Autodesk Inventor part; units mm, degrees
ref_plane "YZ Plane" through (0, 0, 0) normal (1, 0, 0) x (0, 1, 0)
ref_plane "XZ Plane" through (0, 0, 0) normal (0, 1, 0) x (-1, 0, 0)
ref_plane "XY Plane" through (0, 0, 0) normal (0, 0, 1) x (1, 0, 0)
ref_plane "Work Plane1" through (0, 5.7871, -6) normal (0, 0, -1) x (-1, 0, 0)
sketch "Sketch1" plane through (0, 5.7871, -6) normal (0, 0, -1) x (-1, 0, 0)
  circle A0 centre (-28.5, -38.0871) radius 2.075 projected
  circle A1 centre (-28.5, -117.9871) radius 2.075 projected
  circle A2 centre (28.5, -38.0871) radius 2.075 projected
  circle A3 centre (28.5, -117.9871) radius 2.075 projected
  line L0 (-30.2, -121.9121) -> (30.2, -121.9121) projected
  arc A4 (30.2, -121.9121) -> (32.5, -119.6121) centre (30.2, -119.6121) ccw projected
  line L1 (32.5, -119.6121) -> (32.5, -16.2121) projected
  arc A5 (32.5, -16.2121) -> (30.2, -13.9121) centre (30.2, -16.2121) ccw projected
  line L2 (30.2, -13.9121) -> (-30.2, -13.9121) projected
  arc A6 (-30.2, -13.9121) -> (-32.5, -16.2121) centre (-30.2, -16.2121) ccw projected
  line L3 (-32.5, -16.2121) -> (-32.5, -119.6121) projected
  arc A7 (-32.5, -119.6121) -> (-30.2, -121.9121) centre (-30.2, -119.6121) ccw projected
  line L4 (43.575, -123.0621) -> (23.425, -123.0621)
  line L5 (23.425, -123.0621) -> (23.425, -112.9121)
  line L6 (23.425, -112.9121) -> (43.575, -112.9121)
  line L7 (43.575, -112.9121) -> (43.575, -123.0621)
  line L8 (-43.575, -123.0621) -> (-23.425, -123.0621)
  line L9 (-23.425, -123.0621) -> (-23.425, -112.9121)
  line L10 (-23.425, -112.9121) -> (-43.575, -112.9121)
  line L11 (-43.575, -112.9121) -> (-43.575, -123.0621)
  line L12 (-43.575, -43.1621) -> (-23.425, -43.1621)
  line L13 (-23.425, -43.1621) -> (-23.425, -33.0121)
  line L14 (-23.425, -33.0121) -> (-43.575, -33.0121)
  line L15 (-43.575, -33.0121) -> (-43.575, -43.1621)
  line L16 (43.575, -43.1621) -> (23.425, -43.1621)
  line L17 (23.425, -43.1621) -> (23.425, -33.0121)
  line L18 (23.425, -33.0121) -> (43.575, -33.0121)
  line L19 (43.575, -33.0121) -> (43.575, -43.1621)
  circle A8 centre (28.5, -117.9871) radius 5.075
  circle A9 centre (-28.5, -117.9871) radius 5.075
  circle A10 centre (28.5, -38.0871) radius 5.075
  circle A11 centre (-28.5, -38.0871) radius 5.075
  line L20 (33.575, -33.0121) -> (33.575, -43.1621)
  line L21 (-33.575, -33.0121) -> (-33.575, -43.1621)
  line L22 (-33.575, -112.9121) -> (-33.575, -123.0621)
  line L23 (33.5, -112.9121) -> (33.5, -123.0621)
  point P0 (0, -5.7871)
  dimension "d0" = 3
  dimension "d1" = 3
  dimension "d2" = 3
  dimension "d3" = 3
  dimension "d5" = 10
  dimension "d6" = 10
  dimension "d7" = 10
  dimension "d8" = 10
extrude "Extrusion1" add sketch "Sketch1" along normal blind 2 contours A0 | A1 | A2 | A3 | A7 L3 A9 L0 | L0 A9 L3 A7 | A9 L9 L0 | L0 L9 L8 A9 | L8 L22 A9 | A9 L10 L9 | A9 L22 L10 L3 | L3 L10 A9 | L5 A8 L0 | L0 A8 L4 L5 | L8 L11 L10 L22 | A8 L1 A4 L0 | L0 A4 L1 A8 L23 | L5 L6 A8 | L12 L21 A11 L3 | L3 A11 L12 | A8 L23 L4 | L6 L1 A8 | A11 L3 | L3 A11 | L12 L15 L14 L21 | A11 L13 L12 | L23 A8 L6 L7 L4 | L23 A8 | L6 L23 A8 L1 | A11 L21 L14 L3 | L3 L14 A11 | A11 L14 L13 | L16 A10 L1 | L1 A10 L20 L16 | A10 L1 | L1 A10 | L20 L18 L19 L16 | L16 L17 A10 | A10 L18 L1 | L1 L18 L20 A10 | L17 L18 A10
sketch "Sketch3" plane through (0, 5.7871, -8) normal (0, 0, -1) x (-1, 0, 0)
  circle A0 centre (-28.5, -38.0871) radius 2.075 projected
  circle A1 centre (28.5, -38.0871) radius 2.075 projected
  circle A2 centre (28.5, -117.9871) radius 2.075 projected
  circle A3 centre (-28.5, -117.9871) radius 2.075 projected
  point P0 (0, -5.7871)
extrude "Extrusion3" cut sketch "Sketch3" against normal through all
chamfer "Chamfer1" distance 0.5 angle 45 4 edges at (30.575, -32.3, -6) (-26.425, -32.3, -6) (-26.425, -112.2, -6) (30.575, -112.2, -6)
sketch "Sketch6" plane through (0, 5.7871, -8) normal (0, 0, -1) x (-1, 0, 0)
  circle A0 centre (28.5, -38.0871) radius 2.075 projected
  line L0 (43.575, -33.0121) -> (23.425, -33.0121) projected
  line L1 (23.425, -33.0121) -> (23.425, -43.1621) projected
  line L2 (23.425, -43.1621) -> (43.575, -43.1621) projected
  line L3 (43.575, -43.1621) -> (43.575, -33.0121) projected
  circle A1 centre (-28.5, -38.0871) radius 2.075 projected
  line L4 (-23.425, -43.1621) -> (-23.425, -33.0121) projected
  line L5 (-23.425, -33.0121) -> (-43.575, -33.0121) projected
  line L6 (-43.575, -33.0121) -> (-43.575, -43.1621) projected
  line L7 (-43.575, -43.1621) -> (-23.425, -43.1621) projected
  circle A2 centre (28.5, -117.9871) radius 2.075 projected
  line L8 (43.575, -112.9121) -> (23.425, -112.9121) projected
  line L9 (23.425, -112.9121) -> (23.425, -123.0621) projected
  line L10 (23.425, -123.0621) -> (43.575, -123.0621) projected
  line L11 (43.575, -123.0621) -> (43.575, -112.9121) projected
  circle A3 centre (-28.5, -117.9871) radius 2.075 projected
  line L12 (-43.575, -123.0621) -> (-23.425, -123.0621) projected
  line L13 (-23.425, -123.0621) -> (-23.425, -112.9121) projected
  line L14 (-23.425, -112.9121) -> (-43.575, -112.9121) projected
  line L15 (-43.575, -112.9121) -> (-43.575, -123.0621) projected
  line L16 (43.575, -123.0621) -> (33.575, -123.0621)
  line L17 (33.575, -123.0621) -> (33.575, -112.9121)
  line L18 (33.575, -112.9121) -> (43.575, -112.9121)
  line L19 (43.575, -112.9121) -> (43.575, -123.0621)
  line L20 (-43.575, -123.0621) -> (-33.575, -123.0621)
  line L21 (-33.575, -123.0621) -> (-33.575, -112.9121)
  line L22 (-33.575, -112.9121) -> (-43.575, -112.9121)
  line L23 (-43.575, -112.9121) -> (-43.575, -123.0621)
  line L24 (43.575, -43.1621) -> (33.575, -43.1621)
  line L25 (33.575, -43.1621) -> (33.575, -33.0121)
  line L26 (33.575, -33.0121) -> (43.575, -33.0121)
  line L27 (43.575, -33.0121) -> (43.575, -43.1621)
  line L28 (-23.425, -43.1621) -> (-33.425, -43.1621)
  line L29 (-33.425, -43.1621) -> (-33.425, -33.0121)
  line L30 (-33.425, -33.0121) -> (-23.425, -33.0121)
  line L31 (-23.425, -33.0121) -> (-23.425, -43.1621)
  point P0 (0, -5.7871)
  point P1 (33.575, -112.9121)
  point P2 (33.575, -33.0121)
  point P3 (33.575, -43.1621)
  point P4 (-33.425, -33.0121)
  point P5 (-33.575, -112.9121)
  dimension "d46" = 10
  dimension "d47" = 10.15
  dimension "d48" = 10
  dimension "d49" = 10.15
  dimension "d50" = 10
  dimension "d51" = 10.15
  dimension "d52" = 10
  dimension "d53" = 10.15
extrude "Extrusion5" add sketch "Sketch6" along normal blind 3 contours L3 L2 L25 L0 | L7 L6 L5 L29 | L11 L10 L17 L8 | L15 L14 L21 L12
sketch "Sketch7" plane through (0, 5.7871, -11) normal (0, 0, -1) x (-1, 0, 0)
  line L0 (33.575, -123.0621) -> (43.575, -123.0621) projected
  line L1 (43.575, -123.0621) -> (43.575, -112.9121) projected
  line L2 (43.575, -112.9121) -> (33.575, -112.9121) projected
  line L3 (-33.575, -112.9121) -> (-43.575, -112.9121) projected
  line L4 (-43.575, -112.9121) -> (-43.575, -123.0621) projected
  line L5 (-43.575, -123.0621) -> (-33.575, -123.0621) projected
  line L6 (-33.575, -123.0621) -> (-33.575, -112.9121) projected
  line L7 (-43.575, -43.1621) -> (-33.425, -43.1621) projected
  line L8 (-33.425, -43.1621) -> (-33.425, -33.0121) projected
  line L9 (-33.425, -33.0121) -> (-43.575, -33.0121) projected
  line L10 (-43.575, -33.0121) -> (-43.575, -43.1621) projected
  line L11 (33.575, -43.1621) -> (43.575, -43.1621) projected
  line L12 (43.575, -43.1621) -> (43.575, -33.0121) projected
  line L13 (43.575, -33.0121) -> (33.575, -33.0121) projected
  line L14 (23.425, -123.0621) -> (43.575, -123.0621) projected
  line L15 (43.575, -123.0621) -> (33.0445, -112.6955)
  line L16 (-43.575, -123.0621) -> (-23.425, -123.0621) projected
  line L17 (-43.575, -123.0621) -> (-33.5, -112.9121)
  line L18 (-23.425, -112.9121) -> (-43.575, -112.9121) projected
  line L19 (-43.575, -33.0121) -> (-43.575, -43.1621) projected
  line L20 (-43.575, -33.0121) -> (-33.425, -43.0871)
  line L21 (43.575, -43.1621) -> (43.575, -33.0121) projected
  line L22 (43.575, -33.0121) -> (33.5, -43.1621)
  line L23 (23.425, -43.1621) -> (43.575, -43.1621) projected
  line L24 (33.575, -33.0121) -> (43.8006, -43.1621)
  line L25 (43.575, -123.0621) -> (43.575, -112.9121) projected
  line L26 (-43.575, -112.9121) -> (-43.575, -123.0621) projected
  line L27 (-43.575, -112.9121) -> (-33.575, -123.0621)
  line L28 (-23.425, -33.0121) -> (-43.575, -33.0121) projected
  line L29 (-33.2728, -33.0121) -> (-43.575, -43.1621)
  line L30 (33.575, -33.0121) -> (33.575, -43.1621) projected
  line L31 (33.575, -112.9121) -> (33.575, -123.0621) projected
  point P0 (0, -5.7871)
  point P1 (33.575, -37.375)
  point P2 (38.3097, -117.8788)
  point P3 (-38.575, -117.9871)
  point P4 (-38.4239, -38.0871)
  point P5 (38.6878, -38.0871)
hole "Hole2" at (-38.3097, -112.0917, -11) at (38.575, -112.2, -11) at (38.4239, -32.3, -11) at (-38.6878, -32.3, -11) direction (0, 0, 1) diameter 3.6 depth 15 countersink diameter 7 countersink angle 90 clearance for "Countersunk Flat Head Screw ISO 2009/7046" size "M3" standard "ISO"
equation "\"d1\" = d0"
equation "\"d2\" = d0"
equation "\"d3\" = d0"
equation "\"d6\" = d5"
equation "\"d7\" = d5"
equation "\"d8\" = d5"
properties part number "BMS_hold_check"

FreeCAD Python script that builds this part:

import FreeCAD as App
import Part
import Sketcher
Q = App.Units.Quantity


def edges_at(feature, points):
    """Names of the edges that pass closest to the given points."""
    edges = feature.Shape.Edges
    near = lambda p: min(range(len(edges)), key=lambda i: edges[i].distToShape(Part.Vertex(*p))[0])
    return sorted({f"Edge{near(p) + 1}" for p in points})

doc = App.newDocument("Part")
params = doc.addObject("Spreadsheet::Sheet", "Params")
for row, (alias, value) in enumerate([
    ("sketch1_width", "20.15 mm"),
    ("sketch1_height", "10.15 mm"),
    ("pad1_length", "2 mm"),
    ("sketch2_diameter", "4.15 mm"),
    ("chamfer_size", "0.5 mm"),
    ("sketch3_width", "10 mm"),
    ("sketch3_width2", "10.15 mm"),
    ("pad2_length", "3 mm"),
    ("sketch4_diameter", "3.6 mm"),
    ("hole_diameter", "3.6 mm"),
    ("hole_depth", "15 mm"),
    ("hole_csink_diameter", "7 mm"),
], start=1):
    params.set(f"A{row}", alias)
    params.set(f"B{row}", "=" + value)
    params.setAlias(f"B{row}", alias)

body = doc.addObject("PartDesign::Body", "Body")
body.AllowCompound = True

# Sketch on XY plane
sketch1 = body.newObject("Sketcher::SketchObject", "Sketch")
sketch1.AttachmentSupport = (doc.getObject("XY_Plane"), [""])
sketch1.MapMode = "FlatFace"
sketch1.AttachmentOffset = App.Placement(App.Vector(0, 0, -6), App.Rotation())
sketch1.addGeometry(Part.LineSegment(App.Vector(44, -27, 0), App.Vector(44, -37, 0)), False)
sketch1.addGeometry(Part.LineSegment(App.Vector(44, -37, 0), App.Vector(23, -37, 0)), False)
sketch1.addGeometry(Part.LineSegment(App.Vector(23, -37, 0), App.Vector(23, -27, 0)), False)
sketch1.addGeometry(Part.LineSegment(App.Vector(23, -27, 0), App.Vector(44, -27, 0)), False)
sketch1.addGeometry(Part.LineSegment(App.Vector(44, -107, 0), App.Vector(44, -117, 0)), False)
sketch1.addGeometry(Part.LineSegment(App.Vector(44, -117, 0), App.Vector(23, -117, 0)), False)
sketch1.addGeometry(Part.LineSegment(App.Vector(23, -117, 0), App.Vector(23, -107, 0)), False)
sketch1.addGeometry(Part.LineSegment(App.Vector(23, -107, 0), App.Vector(44, -107, 0)), False)
sketch1.addGeometry(Part.LineSegment(App.Vector(-44, -37, 0), App.Vector(-44, -27, 0)), False)
sketch1.addGeometry(Part.LineSegment(App.Vector(-44, -27, 0), App.Vector(-23, -27, 0)), False)
sketch1.addGeometry(Part.LineSegment(App.Vector(-23, -27, 0), App.Vector(-23, -37, 0)), False)
sketch1.addGeometry(Part.LineSegment(App.Vector(-23, -37, 0), App.Vector(-44, -37, 0)), False)
sketch1.addGeometry(Part.LineSegment(App.Vector(-23, -117, 0), App.Vector(-44, -117, 0)), False)
sketch1.addGeometry(Part.LineSegment(App.Vector(-44, -117, 0), App.Vector(-44, -107, 0)), False)
sketch1.addGeometry(Part.LineSegment(App.Vector(-44, -107, 0), App.Vector(-23, -107, 0)), False)
sketch1.addGeometry(Part.LineSegment(App.Vector(-23, -107, 0), App.Vector(-23, -117, 0)), False)
sketch1.addConstraint(Sketcher.Constraint("Coincident", 0, 2, 1, 1))
sketch1.addConstraint(Sketcher.Constraint("Coincident", 1, 2, 2, 1))
sketch1.addConstraint(Sketcher.Constraint("Coincident", 2, 2, 3, 1))
sketch1.addConstraint(Sketcher.Constraint("Coincident", 3, 2, 0, 1))
sketch1.addConstraint(Sketcher.Constraint("Coincident", 4, 2, 5, 1))
sketch1.addConstraint(Sketcher.Constraint("Coincident", 5, 2, 6, 1))
sketch1.addConstraint(Sketcher.Constraint("Coincident", 6, 2, 7, 1))
sketch1.addConstraint(Sketcher.Constraint("Coincident", 7, 2, 4, 1))
sketch1.addConstraint(Sketcher.Constraint("Coincident", 8, 2, 9, 1))
sketch1.addConstraint(Sketcher.Constraint("Coincident", 9, 2, 10, 1))
sketch1.addConstraint(Sketcher.Constraint("Coincident", 10, 2, 11, 1))
sketch1.addConstraint(Sketcher.Constraint("Coincident", 11, 2, 8, 1))
sketch1.addConstraint(Sketcher.Constraint("Coincident", 12, 2, 13, 1))
sketch1.addConstraint(Sketcher.Constraint("Coincident", 13, 2, 14, 1))
sketch1.addConstraint(Sketcher.Constraint("Coincident", 14, 2, 15, 1))
sketch1.addConstraint(Sketcher.Constraint("Coincident", 15, 2, 12, 1))
sketch1.addConstraint(Sketcher.Constraint("Vertical", 0))
sketch1.addConstraint(Sketcher.Constraint("Horizontal", 1))
sketch1.addConstraint(Sketcher.Constraint("Vertical", 2))
sketch1.addConstraint(Sketcher.Constraint("Horizontal", 3))
sketch1.addConstraint(Sketcher.Constraint("Vertical", 4))
sketch1.addConstraint(Sketcher.Constraint("Horizontal", 5))
sketch1.addConstraint(Sketcher.Constraint("Vertical", 6))
sketch1.addConstraint(Sketcher.Constraint("Horizontal", 7))
sketch1.addConstraint(Sketcher.Constraint("Vertical", 8))
sketch1.addConstraint(Sketcher.Constraint("Horizontal", 9))
sketch1.addConstraint(Sketcher.Constraint("Vertical", 10))
sketch1.addConstraint(Sketcher.Constraint("Horizontal", 11))
sketch1.addConstraint(Sketcher.Constraint("Horizontal", 12))
sketch1.addConstraint(Sketcher.Constraint("Vertical", 13))
sketch1.addConstraint(Sketcher.Constraint("Horizontal", 14))
sketch1.addConstraint(Sketcher.Constraint("Vertical", 15))
sketch1.addConstraint(Sketcher.Constraint("Symmetric", 3, 2, 8, 2, -2))
sketch1.addConstraint(Sketcher.Constraint("Symmetric", 1, 2, 10, 2, -2))
sketch1.addConstraint(Sketcher.Constraint("Symmetric", 4, 2, 12, 2, -2))
sketch1.addConstraint(Sketcher.Constraint("Symmetric", 6, 2, 14, 2, -2))
sketch1.addConstraint(Sketcher.Constraint("Vertical", 3, 2, 4, 2))
sketch1.addConstraint(Sketcher.Constraint("Vertical", 2, 2, 5, 2))
sketch1.addConstraint(Sketcher.Constraint("Equal", 2, 4))
sketch1.addConstraint(Sketcher.Constraint("DistanceX", 8, 2, 2, 2, Q("67 mm")))
sketch1.addConstraint(Sketcher.Constraint("DistanceX", 1, 2, 1, 1, Q("20.15 mm")))
sketch1.addConstraint(Sketcher.Constraint("DistanceY", 0, 2, 0, 1, Q("10.15 mm")))
sketch1.addConstraint(Sketcher.Constraint("DistanceY", 4, 2, 0, 2, Q("79.9 mm")))
sketch1.addConstraint(Sketcher.Constraint("DistanceY", 0, 2, -1, 1, Q("37.375 mm")))
sketch1.setExpression("Constraints[40]", "Params.sketch1_width")
sketch1.setExpression("Constraints[41]", "Params.sketch1_height")
pad1 = body.newObject("PartDesign::Pad", "Pad")
pad1.Profile = sketch1
pad1.setExpression("Length", "Params.pad1_length")
pad1.Reversed = True

# Sketch on XY plane
sketch2 = body.newObject("Sketcher::SketchObject", "Sketch001")
sketch2.AttachmentSupport = (doc.getObject("XY_Plane"), [""])
sketch2.MapMode = "FlatFace"
sketch2.AttachmentOffset = App.Placement(App.Vector(0, 0, -8), App.Rotation())
sketch2.addGeometry(Part.Circle(App.Vector(28.5, -32.3, 0), App.Vector(0, 0, 1), 2.1), False)
sketch2.addGeometry(Part.Circle(App.Vector(-28.5, -32.3, 0), App.Vector(0, 0, 1), 2.1), False)
sketch2.addGeometry(Part.Circle(App.Vector(-28.5, -112.2, 0), App.Vector(0, 0, 1), 2.1), False)
sketch2.addGeometry(Part.Circle(App.Vector(28.5, -112.2, 0), App.Vector(0, 0, 1), 2.1), False)
sketch2.addConstraint(Sketcher.Constraint("Equal", 0, 1))
sketch2.addConstraint(Sketcher.Constraint("Equal", 1, 2))
sketch2.addConstraint(Sketcher.Constraint("Equal", 2, 3))
sketch2.addConstraint(Sketcher.Constraint("Symmetric", 0, 3, 1, 3, -2))
sketch2.addConstraint(Sketcher.Constraint("Symmetric", 2, 3, 3, 3, -2))
sketch2.addConstraint(Sketcher.Constraint("Vertical", 1, 3, 2, 3))
sketch2.addConstraint(Sketcher.Constraint("Diameter", 0, Q("4.15 mm")))
sketch2.addConstraint(Sketcher.Constraint("DistanceX", 1, 3, 0, 3, Q("57 mm")))
sketch2.addConstraint(Sketcher.Constraint("DistanceY", 0, 3, -1, 1, Q("32.3 mm")))
sketch2.addConstraint(Sketcher.Constraint("DistanceY", 2, 3, -1, 1, Q("112.2 mm")))
sketch2.setExpression("Constraints[6]", "Params.sketch2_diameter")
pocket1 = body.newObject("PartDesign::Pocket", "Pocket")
pocket1.Profile = sketch2
pocket1.Type = "ThroughAll"
pocket1.Reversed = True
doc.recompute()

chamfer = body.newObject("PartDesign::Chamfer", "Chamfer")
chamfer.Base = (pocket1, edges_at(pocket1, [
    (30.575, -32.3, -6),
    (-26.425, -32.3, -6),
    (-26.425, -112.2, -6),
    (30.575, -112.2, -6),
]))
chamfer.setExpression("Size", "Params.chamfer_size")

# Sketch on XY plane
sketch3 = body.newObject("Sketcher::SketchObject", "Sketch002")
sketch3.AttachmentSupport = (doc.getObject("XY_Plane"), [""])
sketch3.MapMode = "FlatFace"
sketch3.AttachmentOffset = App.Placement(App.Vector(0, 0, -8), App.Rotation())
sketch3.addGeometry(Part.LineSegment(App.Vector(-44, -37, 0), App.Vector(-44, -27, 0)), False)
sketch3.addGeometry(Part.LineSegment(App.Vector(-44, -27, 0), App.Vector(-34, -27, 0)), False)
sketch3.addGeometry(Part.LineSegment(App.Vector(-34, -27, 0), App.Vector(-34, -37, 0)), False)
sketch3.addGeometry(Part.LineSegment(App.Vector(-34, -37, 0), App.Vector(-44, -37, 0)), False)
sketch3.addGeometry(Part.LineSegment(App.Vector(44, -37, 0), App.Vector(33, -37, 0)), False)
sketch3.addGeometry(Part.LineSegment(App.Vector(33, -37, 0), App.Vector(33, -27, 0)), False)
sketch3.addGeometry(Part.LineSegment(App.Vector(33, -27, 0), App.Vector(44, -27, 0)), False)
sketch3.addGeometry(Part.LineSegment(App.Vector(44, -27, 0), App.Vector(44, -37, 0)), False)
sketch3.addGeometry(Part.LineSegment(App.Vector(-44, -117, 0), App.Vector(-44, -107, 0)), False)
sketch3.addGeometry(Part.LineSegment(App.Vector(-44, -107, 0), App.Vector(-34, -107, 0)), False)
sketch3.addGeometry(Part.LineSegment(App.Vector(-34, -107, 0), App.Vector(-34, -117, 0)), False)
sketch3.addGeometry(Part.LineSegment(App.Vector(-34, -117, 0), App.Vector(-44, -117, 0)), False)
sketch3.addGeometry(Part.LineSegment(App.Vector(44, -107, 0), App.Vector(44, -117, 0)), False)
sketch3.addGeometry(Part.LineSegment(App.Vector(44, -117, 0), App.Vector(34, -117, 0)), False)
sketch3.addGeometry(Part.LineSegment(App.Vector(34, -117, 0), App.Vector(34, -107, 0)), False)
sketch3.addGeometry(Part.LineSegment(App.Vector(34, -107, 0), App.Vector(44, -107, 0)), False)
sketch3.addConstraint(Sketcher.Constraint("Coincident", 0, 2, 1, 1))
sketch3.addConstraint(Sketcher.Constraint("Coincident", 1, 2, 2, 1))
sketch3.addConstraint(Sketcher.Constraint("Coincident", 2, 2, 3, 1))
sketch3.addConstraint(Sketcher.Constraint("Coincident", 3, 2, 0, 1))
sketch3.addConstraint(Sketcher.Constraint("Coincident", 4, 2, 5, 1))
sketch3.addConstraint(Sketcher.Constraint("Coincident", 5, 2, 6, 1))
sketch3.addConstraint(Sketcher.Constraint("Coincident", 6, 2, 7, 1))
sketch3.addConstraint(Sketcher.Constraint("Coincident", 7, 2, 4, 1))
sketch3.addConstraint(Sketcher.Constraint("Coincident", 8, 2, 9, 1))
sketch3.addConstraint(Sketcher.Constraint("Coincident", 9, 2, 10, 1))
sketch3.addConstraint(Sketcher.Constraint("Coincident", 10, 2, 11, 1))
sketch3.addConstraint(Sketcher.Constraint("Coincident", 11, 2, 8, 1))
sketch3.addConstraint(Sketcher.Constraint("Coincident", 12, 2, 13, 1))
sketch3.addConstraint(Sketcher.Constraint("Coincident", 13, 2, 14, 1))
sketch3.addConstraint(Sketcher.Constraint("Coincident", 14, 2, 15, 1))
sketch3.addConstraint(Sketcher.Constraint("Coincident", 15, 2, 12, 1))
sketch3.addConstraint(Sketcher.Constraint("Vertical", 0))
sketch3.addConstraint(Sketcher.Constraint("Horizontal", 1))
sketch3.addConstraint(Sketcher.Constraint("Vertical", 2))
sketch3.addConstraint(Sketcher.Constraint("Horizontal", 3))
sketch3.addConstraint(Sketcher.Constraint("Horizontal", 4))
sketch3.addConstraint(Sketcher.Constraint("Vertical", 5))
sketch3.addConstraint(Sketcher.Constraint("Horizontal", 6))
sketch3.addConstraint(Sketcher.Constraint("Vertical", 7))
sketch3.addConstraint(Sketcher.Constraint("Vertical", 8))
sketch3.addConstraint(Sketcher.Constraint("Horizontal", 9))
sketch3.addConstraint(Sketcher.Constraint("Vertical", 10))
sketch3.addConstraint(Sketcher.Constraint("Horizontal", 11))
sketch3.addConstraint(Sketcher.Constraint("Vertical", 12))
sketch3.addConstraint(Sketcher.Constraint("Horizontal", 13))
sketch3.addConstraint(Sketcher.Constraint("Vertical", 14))
sketch3.addConstraint(Sketcher.Constraint("Horizontal", 15))
sketch3.addConstraint(Sketcher.Constraint("Symmetric", 0, 2, 6, 2, -2))
sketch3.addConstraint(Sketcher.Constraint("Symmetric", 11, 2, 12, 2, -2))
sketch3.addConstraint(Sketcher.Constraint("Symmetric", 9, 2, 14, 2, -2))
sketch3.addConstraint(Sketcher.Constraint("Horizontal", 3, 2, 4, 2))
sketch3.addConstraint(Sketcher.Constraint("Vertical", 3, 2, 8, 2))
sketch3.addConstraint(Sketcher.Constraint("Vertical", 2, 2, 9, 2))
sketch3.addConstraint(Sketcher.Constraint("Equal", 6, 0))
sketch3.addConstraint(Sketcher.Constraint("Equal", 7, 8))
sketch3.addConstraint(Sketcher.Constraint("DistanceX", 1, 1, 1, 2, Q("10 mm")))
sketch3.addConstraint(Sketcher.Constraint("DistanceX", 4, 2, 4, 1, Q("10.15 mm")))
sketch3.addConstraint(Sketcher.Constraint("DistanceX", 2, 2, 4, 2, Q("67 mm")))
sketch3.addConstraint(Sketcher.Constraint("DistanceY", 8, 2, 0, 2, Q("79.9 mm")))
sketch3.addConstraint(Sketcher.Constraint("DistanceY", 0, 2, -1, 1, Q("27.225 mm")))
sketch3.setExpression("Constraints[40]", "Params.sketch3_width")
sketch3.setExpression("Constraints[41]", "Params.sketch3_width2")
pad2 = body.newObject("PartDesign::Pad", "Pad001")
pad2.Profile = sketch3
pad2.setExpression("Length", "Params.pad2_length")
pad2.Reversed = True

# Sketch on XY plane
sketch4 = body.newObject("Sketcher::SketchObject", "Sketch003")
sketch4.AttachmentSupport = (doc.getObject("XY_Plane"), [""])
sketch4.MapMode = "FlatFace"
sketch4.AttachmentOffset = App.Placement(App.Vector(0, 0, -11), App.Rotation())
sketch4.addGeometry(Part.Circle(App.Vector(-38.3, -112.1, 0), App.Vector(0, 0, 1), 1.8), False)
sketch4.addGeometry(Part.Circle(App.Vector(38.6, -112.2, 0), App.Vector(0, 0, 1), 1.8), False)
sketch4.addGeometry(Part.Circle(App.Vector(38.4, -32.3, 0), App.Vector(0, 0, 1), 1.8), False)
sketch4.addGeometry(Part.Circle(App.Vector(-38.7, -32.3, 0), App.Vector(0, 0, 1), 1.8), False)
sketch4.addConstraint(Sketcher.Constraint("Equal", 0, 1))
sketch4.addConstraint(Sketcher.Constraint("Equal", 1, 2))
sketch4.addConstraint(Sketcher.Constraint("Equal", 2, 3))
sketch4.addConstraint(Sketcher.Constraint("Horizontal", 2, 3, 3, 3))
sketch4.addConstraint(Sketcher.Constraint("Diameter", 0, Q("3.6 mm")))
sketch4.addConstraint(Sketcher.Constraint("DistanceY", 1, 3, -1, 1, Q("112.2 mm")))
sketch4.addConstraint(Sketcher.Constraint("DistanceY", 2, 3, -1, 1, Q("32.3 mm")))
sketch4.addConstraint(Sketcher.Constraint("DistanceX", -1, 1, 1, 3, Q("38.575 mm")))
sketch4.addConstraint(Sketcher.Constraint("DistanceX", -1, 1, 2, 3, Q("38.424 mm")))
sketch4.addConstraint(Sketcher.Constraint("DistanceX", 3, 3, 0, 3, Q("0.378 mm")))
sketch4.addConstraint(Sketcher.Constraint("DistanceX", 0, 3, -1, 1, Q("38.3097 mm")))
sketch4.addConstraint(Sketcher.Constraint("DistanceY", 0, 3, -1, 1, Q("112.0917 mm")))
sketch4.setExpression("Constraints[4]", "Params.sketch4_diameter")
doc.recompute()
hole = body.newObject("PartDesign::Hole", "Hole")
hole.Profile = sketch4
hole.ThreadType = "None"
hole.setExpression("Diameter", "Params.hole_diameter")
hole.DepthType = "Dimension"
hole.setExpression("Depth", "Params.hole_depth")
hole.DrillPoint = "Flat"
hole.HoleCutType = "Countersink"
hole.setExpression("HoleCutDiameter", "Params.hole_csink_diameter")
hole.HoleCutCountersinkAngle = 90
hole.Reversed = True

doc.recompute()
